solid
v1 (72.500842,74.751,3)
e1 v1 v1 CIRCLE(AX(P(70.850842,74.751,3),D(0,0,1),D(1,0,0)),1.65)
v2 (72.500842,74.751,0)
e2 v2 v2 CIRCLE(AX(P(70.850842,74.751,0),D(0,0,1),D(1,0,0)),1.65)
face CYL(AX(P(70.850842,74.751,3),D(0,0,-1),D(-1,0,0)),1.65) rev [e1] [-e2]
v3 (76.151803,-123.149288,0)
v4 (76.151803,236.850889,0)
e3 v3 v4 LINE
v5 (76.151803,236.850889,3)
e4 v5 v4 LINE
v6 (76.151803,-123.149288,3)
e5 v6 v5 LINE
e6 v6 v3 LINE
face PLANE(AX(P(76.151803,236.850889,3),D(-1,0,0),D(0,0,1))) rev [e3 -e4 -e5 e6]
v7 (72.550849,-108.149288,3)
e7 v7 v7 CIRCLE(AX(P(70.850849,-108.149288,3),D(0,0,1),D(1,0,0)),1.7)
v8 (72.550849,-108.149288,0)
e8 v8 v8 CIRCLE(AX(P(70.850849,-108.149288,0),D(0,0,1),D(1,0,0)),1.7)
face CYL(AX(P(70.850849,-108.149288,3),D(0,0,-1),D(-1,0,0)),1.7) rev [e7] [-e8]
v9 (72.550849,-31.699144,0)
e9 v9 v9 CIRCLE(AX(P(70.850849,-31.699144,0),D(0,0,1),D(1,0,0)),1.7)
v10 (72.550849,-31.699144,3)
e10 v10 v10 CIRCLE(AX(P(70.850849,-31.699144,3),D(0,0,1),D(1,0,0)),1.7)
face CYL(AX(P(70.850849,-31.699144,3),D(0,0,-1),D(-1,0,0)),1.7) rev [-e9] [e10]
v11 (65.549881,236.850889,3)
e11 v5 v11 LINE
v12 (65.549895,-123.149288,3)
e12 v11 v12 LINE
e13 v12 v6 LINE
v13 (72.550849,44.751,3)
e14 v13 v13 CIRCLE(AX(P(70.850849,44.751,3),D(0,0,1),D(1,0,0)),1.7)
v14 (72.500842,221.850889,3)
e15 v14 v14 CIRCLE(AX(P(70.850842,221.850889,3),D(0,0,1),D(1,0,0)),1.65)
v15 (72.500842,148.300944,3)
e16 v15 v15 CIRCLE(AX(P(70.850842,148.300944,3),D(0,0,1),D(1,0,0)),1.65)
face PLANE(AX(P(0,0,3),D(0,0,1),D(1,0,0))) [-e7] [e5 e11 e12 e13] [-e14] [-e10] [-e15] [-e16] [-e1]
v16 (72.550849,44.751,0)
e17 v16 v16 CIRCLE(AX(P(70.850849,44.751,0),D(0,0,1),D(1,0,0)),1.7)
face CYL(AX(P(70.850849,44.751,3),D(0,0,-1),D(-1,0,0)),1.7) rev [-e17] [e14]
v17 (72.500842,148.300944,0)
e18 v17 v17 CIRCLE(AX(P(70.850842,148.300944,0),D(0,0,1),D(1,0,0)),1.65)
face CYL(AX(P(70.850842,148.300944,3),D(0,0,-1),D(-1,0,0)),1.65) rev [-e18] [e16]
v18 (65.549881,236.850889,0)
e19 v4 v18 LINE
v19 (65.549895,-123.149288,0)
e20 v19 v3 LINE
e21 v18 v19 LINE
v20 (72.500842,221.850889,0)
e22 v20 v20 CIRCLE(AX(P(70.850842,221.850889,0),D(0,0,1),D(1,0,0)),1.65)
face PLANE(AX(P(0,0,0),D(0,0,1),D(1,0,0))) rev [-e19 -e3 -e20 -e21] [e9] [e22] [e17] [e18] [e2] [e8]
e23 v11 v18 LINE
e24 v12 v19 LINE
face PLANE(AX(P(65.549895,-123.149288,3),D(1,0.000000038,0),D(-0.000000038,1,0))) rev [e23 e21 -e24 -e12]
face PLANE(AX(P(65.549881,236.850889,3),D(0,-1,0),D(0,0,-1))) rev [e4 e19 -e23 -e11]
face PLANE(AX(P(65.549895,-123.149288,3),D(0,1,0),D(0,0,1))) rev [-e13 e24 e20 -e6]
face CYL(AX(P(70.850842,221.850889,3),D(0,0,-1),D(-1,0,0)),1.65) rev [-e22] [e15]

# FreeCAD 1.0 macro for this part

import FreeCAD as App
import Part
import Sketcher

V = App.Vector
Q = App.Units.Quantity


def add_polygon(sketch, points):
    """Adds a closed chain of lines whose ends are joined by coincident constraints."""
    first, n = sketch.GeometryCount, len(points)
    for a, b in zip(points, points[1:] + points[:1]):
        sketch.addGeometry(Part.LineSegment(App.Vector(*a, 0), App.Vector(*b, 0)), False)
    for i in range(n):
        sketch.addConstraint(Sketcher.Constraint("Coincident", first + i, 2, first + (i + 1) % n, 1))

doc = App.newDocument("Part")
body = doc.addObject("PartDesign::Body", "Body")

sketch1 = body.newObject("Sketcher::SketchObject", "Sketch")
sketch1.AttachmentSupport = (doc.getObject("XY_Plane"), [""])
sketch1.MapMode = "FlatFace"
add_polygon(sketch1, [(65.5, -123.1), (76.2, -123.1), (76.2, 236.9), (65.5, 236.9)])
sketch1.addGeometry(Part.Circle(V(70.9, -108.1, 0), V(0, 0, 1), 1.7), False)
sketch1.addGeometry(Part.Circle(V(70.9, -31.7, 0), V(0, 0, 1), 1.7), False)
sketch1.addGeometry(Part.Circle(V(70.9, 44.8, 0), V(0, 0, 1), 1.7), False)
sketch1.addGeometry(Part.Circle(V(70.9, 74.8, 0), V(0, 0, 1), 1.6), False)
sketch1.addGeometry(Part.Circle(V(70.9, 148.3, 0), V(0, 0, 1), 1.6), False)
sketch1.addGeometry(Part.Circle(V(70.9, 221.9, 0), V(0, 0, 1), 1.6), False)
sketch1.addConstraint(Sketcher.Constraint("Horizontal", 0))
sketch1.addConstraint(Sketcher.Constraint("Vertical", 1))
sketch1.addConstraint(Sketcher.Constraint("Horizontal", 2))
sketch1.addConstraint(Sketcher.Constraint("Equal", 4, 5))
sketch1.addConstraint(Sketcher.Constraint("Equal", 5, 6))
sketch1.addConstraint(Sketcher.Constraint("Equal", 7, 8))
sketch1.addConstraint(Sketcher.Constraint("Equal", 8, 9))
sketch1.addConstraint(Sketcher.Constraint("Vertical", 4, 3, 5, 3))
sketch1.addConstraint(Sketcher.Constraint("Vertical", 5, 3, 6, 3))
sketch1.addConstraint(Sketcher.Constraint("Vertical", 7, 3, 8, 3))
sketch1.addConstraint(Sketcher.Constraint("Vertical", 8, 3, 9, 3))
sketch1.addConstraint(Sketcher.Constraint("Diameter", 4, 3.4))
sketch1.addConstraint(Sketcher.Constraint("Diameter", 7, 3.3))
sketch1.addConstraint(Sketcher.Constraint("Angle", 3, Q("-89.999998 deg")))
sketch1.addConstraint(Sketcher.Constraint("DistanceY", 6, 3, 7, 3, 30.0))
sketch1.addConstraint(Sketcher.Constraint("DistanceY", 0, 2, 4, 3, 15.0))
sketch1.addConstraint(Sketcher.Constraint("DistanceY", 9, 3, 1, 2, 15.0))
sketch1.addConstraint(Sketcher.Constraint("DistanceY", -1, 1, 6, 3, 44.751))
sketch1.addConstraint(Sketcher.Constraint("DistanceX", 0, 1, 0, 2, 10.601908))
sketch1.addConstraint(Sketcher.Constraint("DistanceY", 1, 1, 1, 2, 360.000177))
sketch1.addConstraint(Sketcher.Constraint("DistanceX", -1, 1, 4, 3, 70.850849))
sketch1.addConstraint(Sketcher.Constraint("DistanceY", 4, 3, -1, 1, 108.149288))
sketch1.addConstraint(Sketcher.Constraint("DistanceX", -1, 1, 2, 2, 65.549881))
sketch1.addConstraint(Sketcher.Constraint("DistanceY", 5, 3, 8, 3, 180.000088))
sketch1.addConstraint(Sketcher.Constraint("DistanceX", 7, 3, 0, 2, 5.300961))
sketch1.addConstraint(Sketcher.Constraint("DistanceY", 5, 3, -1, 1, 31.699144))
pad1 = body.newObject("PartDesign::Pad", "Pad")
pad1.Profile = sketch1
pad1.Length = 3

doc.recompute()
